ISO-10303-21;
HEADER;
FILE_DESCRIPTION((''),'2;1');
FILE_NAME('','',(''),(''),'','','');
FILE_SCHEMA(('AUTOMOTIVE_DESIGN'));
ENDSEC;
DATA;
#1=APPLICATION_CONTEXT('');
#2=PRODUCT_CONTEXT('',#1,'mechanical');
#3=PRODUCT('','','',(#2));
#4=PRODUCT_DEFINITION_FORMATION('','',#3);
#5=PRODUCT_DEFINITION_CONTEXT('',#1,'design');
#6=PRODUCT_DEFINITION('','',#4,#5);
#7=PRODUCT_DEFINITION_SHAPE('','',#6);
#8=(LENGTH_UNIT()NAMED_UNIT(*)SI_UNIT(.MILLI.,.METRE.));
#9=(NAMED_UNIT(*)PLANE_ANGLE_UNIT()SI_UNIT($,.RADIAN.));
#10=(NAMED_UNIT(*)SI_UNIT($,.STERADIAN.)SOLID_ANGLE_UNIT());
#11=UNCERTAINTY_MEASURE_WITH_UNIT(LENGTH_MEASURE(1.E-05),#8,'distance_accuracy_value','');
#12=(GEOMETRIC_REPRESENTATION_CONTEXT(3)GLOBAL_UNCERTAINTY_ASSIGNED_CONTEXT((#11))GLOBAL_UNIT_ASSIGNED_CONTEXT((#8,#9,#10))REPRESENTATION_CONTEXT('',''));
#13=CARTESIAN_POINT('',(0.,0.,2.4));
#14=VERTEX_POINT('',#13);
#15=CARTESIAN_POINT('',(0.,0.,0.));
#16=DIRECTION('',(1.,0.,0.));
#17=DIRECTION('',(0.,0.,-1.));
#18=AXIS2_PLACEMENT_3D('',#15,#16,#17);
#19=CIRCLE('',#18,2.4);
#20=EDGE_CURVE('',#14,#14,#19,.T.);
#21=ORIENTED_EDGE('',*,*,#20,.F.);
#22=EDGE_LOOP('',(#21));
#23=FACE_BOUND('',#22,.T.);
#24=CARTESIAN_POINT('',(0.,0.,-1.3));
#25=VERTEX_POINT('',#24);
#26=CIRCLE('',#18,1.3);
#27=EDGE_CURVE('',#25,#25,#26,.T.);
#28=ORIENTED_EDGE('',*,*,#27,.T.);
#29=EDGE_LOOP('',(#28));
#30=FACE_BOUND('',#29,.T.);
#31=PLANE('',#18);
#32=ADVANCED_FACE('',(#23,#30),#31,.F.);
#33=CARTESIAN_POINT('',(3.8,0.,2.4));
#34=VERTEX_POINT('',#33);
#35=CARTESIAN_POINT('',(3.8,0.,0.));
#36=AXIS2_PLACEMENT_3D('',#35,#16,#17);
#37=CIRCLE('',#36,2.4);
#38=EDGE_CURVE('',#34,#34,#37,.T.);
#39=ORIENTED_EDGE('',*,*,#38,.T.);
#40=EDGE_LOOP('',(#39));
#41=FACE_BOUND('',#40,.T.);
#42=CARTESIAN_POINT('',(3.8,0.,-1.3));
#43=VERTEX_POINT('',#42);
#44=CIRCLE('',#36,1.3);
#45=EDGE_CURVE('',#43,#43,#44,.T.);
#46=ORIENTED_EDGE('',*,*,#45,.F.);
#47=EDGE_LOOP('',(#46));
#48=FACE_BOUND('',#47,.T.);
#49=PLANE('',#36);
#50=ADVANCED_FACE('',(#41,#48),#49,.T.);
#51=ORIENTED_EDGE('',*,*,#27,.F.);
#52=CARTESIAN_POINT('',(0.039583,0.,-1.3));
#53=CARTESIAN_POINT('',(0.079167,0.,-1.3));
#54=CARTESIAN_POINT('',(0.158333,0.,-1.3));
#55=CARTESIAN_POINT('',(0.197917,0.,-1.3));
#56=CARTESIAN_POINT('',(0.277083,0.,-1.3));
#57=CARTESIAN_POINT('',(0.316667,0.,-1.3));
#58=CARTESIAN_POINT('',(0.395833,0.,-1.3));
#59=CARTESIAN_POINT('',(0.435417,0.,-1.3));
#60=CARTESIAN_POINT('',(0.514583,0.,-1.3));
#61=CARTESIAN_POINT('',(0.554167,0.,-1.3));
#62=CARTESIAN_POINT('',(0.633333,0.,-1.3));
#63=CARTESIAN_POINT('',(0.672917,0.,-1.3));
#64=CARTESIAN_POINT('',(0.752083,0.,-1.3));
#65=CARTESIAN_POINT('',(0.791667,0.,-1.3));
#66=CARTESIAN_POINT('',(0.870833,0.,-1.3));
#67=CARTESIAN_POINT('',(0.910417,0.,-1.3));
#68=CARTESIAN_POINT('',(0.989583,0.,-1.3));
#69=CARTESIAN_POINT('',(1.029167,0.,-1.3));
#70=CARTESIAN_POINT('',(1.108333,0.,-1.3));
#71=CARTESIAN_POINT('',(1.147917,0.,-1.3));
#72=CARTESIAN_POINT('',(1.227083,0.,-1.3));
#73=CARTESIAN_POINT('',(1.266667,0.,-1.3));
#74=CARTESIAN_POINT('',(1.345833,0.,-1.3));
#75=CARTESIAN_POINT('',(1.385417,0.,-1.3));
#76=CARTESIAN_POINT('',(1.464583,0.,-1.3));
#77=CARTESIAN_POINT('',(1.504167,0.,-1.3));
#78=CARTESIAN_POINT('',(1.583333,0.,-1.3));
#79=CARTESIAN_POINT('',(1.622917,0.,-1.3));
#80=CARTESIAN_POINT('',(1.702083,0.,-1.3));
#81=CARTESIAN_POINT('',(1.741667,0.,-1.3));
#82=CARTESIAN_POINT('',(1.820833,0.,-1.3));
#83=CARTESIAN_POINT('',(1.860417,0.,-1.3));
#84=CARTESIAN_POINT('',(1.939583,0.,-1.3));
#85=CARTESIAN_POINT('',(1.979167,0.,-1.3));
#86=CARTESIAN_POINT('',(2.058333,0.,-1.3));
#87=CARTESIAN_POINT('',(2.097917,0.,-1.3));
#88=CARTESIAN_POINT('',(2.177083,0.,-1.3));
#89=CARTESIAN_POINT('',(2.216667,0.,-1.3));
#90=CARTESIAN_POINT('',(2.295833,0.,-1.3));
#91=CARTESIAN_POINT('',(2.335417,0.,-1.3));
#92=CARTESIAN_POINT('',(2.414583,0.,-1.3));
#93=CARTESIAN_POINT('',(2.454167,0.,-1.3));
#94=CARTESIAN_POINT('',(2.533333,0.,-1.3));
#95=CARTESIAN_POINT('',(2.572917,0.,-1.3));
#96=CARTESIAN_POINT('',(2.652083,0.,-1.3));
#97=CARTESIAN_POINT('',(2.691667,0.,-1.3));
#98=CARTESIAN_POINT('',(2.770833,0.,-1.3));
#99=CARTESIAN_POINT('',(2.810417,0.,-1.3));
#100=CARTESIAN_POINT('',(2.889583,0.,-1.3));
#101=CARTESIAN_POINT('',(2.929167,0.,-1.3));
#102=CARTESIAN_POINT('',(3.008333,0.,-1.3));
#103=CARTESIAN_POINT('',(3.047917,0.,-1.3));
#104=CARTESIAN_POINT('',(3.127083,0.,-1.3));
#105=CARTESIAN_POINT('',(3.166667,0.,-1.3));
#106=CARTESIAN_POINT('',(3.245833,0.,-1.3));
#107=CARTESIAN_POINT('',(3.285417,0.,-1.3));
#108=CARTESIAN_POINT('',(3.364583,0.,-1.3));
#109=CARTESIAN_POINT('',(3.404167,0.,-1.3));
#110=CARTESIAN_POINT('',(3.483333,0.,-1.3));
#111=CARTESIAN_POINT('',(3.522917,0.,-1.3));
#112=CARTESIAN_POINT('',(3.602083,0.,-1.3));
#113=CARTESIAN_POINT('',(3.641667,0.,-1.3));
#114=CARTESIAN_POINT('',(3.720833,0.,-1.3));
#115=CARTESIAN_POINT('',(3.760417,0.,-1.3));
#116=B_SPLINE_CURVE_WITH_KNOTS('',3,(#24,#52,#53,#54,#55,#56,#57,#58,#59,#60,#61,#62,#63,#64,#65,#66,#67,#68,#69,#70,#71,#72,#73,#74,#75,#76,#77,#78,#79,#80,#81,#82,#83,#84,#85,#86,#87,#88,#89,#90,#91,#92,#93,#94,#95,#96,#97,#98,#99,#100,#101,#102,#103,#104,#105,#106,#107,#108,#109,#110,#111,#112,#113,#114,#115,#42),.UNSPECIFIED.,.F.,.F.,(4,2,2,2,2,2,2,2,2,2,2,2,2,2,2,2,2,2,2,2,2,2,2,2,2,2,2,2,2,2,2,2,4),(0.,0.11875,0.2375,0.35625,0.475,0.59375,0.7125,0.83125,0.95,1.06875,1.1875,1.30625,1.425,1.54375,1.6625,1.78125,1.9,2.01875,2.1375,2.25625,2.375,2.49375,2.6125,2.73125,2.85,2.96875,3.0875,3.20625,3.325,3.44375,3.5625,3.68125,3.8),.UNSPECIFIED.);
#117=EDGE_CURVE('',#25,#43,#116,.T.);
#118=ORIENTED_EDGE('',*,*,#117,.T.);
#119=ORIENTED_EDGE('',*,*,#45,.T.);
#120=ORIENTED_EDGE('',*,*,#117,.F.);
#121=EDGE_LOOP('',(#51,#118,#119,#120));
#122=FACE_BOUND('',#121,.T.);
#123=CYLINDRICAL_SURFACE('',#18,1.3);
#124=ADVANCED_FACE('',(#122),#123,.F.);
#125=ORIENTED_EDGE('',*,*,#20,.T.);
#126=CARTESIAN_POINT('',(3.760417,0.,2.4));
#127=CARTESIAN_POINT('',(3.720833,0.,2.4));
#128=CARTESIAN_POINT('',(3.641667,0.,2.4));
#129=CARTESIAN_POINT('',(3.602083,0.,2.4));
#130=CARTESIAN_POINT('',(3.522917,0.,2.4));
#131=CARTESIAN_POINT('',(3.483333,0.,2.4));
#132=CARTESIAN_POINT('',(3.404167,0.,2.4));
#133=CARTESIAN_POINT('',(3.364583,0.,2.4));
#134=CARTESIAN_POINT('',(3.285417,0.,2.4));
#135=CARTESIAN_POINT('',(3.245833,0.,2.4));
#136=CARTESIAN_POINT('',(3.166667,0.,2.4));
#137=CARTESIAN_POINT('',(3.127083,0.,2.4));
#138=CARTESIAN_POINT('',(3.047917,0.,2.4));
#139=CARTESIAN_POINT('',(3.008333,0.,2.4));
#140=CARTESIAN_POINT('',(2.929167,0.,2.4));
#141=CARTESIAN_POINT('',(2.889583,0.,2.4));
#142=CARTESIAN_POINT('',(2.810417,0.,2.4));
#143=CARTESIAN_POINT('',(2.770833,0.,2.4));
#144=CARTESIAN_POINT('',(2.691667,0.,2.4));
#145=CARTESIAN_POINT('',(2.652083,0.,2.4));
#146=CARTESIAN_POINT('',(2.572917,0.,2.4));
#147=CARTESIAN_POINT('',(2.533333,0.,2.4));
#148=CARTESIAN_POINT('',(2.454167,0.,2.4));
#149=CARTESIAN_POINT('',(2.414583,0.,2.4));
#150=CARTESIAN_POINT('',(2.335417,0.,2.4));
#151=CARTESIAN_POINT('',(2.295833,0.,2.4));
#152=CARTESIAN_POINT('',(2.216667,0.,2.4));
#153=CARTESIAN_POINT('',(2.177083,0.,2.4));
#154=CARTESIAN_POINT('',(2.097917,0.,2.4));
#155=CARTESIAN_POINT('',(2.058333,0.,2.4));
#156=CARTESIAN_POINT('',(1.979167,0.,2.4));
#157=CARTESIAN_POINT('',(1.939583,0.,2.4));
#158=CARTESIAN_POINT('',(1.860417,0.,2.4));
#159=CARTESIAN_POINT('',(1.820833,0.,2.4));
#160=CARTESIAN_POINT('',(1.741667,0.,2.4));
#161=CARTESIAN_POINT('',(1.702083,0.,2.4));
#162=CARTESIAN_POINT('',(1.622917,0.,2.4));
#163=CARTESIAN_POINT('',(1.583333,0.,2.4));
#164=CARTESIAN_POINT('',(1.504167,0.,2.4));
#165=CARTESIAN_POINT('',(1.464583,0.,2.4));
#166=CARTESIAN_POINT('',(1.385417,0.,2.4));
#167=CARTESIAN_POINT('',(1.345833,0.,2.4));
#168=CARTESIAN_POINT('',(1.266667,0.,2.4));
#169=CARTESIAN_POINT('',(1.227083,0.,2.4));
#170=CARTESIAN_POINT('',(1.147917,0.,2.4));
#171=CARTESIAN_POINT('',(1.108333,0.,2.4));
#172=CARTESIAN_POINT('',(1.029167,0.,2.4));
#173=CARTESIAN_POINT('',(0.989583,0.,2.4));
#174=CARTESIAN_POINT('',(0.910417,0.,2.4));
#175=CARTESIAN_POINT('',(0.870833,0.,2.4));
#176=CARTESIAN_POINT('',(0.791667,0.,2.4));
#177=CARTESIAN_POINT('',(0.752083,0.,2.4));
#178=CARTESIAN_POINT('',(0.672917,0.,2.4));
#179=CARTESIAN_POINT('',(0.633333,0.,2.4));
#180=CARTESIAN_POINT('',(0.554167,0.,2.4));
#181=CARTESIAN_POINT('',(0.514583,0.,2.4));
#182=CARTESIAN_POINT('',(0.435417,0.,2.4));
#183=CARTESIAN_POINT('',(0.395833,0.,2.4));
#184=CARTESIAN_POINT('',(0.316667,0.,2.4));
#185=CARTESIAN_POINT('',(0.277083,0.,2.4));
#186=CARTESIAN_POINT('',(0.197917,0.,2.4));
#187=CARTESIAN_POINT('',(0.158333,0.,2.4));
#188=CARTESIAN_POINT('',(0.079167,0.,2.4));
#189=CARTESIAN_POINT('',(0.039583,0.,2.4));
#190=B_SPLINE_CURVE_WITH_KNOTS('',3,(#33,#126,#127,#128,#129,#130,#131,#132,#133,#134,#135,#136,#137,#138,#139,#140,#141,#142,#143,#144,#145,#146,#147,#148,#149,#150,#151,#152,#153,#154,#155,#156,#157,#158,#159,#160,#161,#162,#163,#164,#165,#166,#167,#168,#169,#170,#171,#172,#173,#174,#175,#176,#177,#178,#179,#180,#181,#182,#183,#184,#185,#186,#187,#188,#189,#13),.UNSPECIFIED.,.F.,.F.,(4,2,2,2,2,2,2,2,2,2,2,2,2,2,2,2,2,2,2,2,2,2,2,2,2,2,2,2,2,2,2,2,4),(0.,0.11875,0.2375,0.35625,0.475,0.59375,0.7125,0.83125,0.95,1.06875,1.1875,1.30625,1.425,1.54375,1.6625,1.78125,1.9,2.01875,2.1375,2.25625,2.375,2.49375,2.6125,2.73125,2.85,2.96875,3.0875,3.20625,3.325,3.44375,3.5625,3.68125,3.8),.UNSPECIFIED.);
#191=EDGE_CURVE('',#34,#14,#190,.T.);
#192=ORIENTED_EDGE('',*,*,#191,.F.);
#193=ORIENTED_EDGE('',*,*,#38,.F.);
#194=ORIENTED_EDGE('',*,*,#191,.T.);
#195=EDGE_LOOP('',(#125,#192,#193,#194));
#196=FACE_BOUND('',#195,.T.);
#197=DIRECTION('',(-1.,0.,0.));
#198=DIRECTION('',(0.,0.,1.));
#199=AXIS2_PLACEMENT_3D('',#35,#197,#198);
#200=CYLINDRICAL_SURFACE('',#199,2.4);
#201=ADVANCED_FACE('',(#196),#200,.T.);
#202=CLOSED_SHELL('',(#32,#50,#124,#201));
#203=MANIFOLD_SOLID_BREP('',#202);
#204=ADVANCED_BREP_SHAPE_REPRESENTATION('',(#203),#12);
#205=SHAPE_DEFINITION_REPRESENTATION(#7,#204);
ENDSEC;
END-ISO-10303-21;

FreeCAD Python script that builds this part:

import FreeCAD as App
import Part
import Sketcher

V = App.Vector
Q = App.Units.Quantity

doc = App.newDocument("Part")
body = doc.addObject("PartDesign::Body", "Body")

sketch1 = doc.addObject("Sketcher::SketchObject", "Sketch")
body.addObject(sketch1)
sketch1.AttachmentSupport = (doc.YZ_Plane, [""])
sketch1.MapMode = "FlatFace"
sketch1.addGeometry(Part.Circle(V(0, 0, 0), V(0, 0, 1), 2.4), False)
sketch1.addConstraint([
    Sketcher.Constraint("Coincident", 0, 3, -1, 1),
    Sketcher.Constraint("Diameter", 0, Q("4.8 mm")),
])
pad1 = doc.addObject("PartDesign::Pad", "Pad")
body.addObject(pad1)
pad1.Profile = sketch1
pad1.Length = 3.8

sketch2 = doc.addObject("Sketcher::SketchObject", "Sketch001")
body.addObject(sketch2)
sketch2.AttachmentSupport = (doc.YZ_Plane, [""])
sketch2.MapMode = "FlatFace"
sketch2.AttachmentOffset = App.Placement(V(0, 0, 3.8), App.Rotation())
sketch2.addGeometry(Part.Circle(V(0, 0, 0), V(0, 0, 1), 1.3), False)
sketch2.addConstraint([
    Sketcher.Constraint("Coincident", 0, 3, -1, 1),
    Sketcher.Constraint("Diameter", 0, Q("2.6 mm")),
])
pocket1 = doc.addObject("PartDesign::Pocket", "Pocket")
body.addObject(pocket1)
pocket1.Profile = sketch2
pocket1.Length = 3.8

doc.recompute()
